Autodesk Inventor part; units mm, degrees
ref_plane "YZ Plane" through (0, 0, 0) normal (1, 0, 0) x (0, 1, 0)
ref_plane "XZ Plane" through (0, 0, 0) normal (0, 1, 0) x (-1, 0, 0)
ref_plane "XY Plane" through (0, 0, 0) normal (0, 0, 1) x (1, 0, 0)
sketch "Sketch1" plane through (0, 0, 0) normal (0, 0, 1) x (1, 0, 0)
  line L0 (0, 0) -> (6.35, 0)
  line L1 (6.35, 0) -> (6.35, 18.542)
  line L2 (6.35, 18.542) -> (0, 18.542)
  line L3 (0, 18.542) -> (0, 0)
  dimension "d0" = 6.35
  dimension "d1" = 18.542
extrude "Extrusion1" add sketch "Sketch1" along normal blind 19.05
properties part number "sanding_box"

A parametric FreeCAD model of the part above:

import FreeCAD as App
import Part
import Sketcher
from FreeCAD import Vector
Q = App.Units.Quantity


def add_polygon(sketch, points):
    """Adds a closed chain of lines whose ends are joined by coincident constraints."""
    first, n = sketch.GeometryCount, len(points)
    for a, b in zip(points, points[1:] + points[:1]):
        sketch.addGeometry(Part.LineSegment(App.Vector(*a, 0), App.Vector(*b, 0)), False)
    for i in range(n):
        sketch.addConstraint(Sketcher.Constraint("Coincident", first + i, 2, first + (i + 1) % n, 1))

doc = App.newDocument("Part")
body = doc.addObject("PartDesign::Body", "Body")

sketch1 = body.newObject("Sketcher::SketchObject", "Sketch")
sketch1.AttachmentSupport = (doc.getObject("XY_Plane"), [""])
sketch1.MapMode = "FlatFace"
add_polygon(sketch1, [(0, 19), (0, 0), (6, 0), (6, 19)])
sketch1.addConstraint([
    Sketcher.Constraint("Vertical", 0),
    Sketcher.Constraint("Horizontal", 1),
    Sketcher.Constraint("Vertical", 2),
    Sketcher.Constraint("Horizontal", 3),
    Sketcher.Constraint("Coincident", 0, 2, -1, 1),
    Sketcher.Constraint("DistanceX", 1, 1, 1, 2, Q("0.25 in")),
    Sketcher.Constraint("DistanceY", 0, 2, 0, 1, Q("0.73 in")),
])
pad1 = body.newObject("PartDesign::Pad", "Pad")
pad1.Profile = sketch1
pad1.Length = Q("0.75 in")

doc.recompute()
